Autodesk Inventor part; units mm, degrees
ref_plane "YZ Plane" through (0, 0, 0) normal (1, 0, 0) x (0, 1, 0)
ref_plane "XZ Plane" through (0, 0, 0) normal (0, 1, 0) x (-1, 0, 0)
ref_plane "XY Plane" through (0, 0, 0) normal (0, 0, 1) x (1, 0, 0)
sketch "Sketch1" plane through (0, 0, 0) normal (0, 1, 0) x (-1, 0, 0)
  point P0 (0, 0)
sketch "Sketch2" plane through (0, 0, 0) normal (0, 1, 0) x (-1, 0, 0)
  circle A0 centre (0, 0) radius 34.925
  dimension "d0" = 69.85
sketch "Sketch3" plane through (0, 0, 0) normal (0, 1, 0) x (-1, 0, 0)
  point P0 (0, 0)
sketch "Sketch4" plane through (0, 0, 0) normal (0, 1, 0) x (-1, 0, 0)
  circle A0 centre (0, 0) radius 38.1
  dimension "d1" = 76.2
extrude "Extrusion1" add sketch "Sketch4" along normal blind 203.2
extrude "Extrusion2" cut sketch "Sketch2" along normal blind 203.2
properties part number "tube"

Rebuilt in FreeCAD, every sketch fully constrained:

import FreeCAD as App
import Part
import Sketcher
from FreeCAD import Vector
Q = App.Units.Quantity

doc = App.newDocument("Part")
params = doc.addObject("Spreadsheet::Sheet", "Params")
for row, (alias, value) in enumerate([
    ("sketch1_diameter", "3 in"),
    ("pad1_length", "8 in"),
    ("sketch2_diameter", "2.75 in"),
    ("pocket1_length", "8 in"),
], start=1):
    params.set(f"A{row}", alias)
    params.set(f"B{row}", "=" + value)
    params.setAlias(f"B{row}", alias)

body = doc.addObject("PartDesign::Body", "Body")

# Sketch on XZ plane
sketch1 = body.newObject("Sketcher::SketchObject", "Sketch")
sketch1.AttachmentSupport = (doc.getObject("XZ_Plane"), [""])
sketch1.MapMode = "FlatFace"
sketch1.addGeometry(Part.Circle(Vector(0, 0, 0), Vector(0, 0, 1), 38), False)
sketch1.addConstraint([
    Sketcher.Constraint("Coincident", 0, 3, -1, 1),
    Sketcher.Constraint("Diameter", 0, Q("3 in")),
])
sketch1.setExpression("Constraints[1]", "Params.sketch1_diameter")
pad1 = body.newObject("PartDesign::Pad", "Pad")
pad1.Profile = sketch1
pad1.setExpression("Length", "Params.pad1_length")
pad1.Reversed = True

# Sketch on XZ plane
sketch2 = body.newObject("Sketcher::SketchObject", "Sketch001")
sketch2.AttachmentSupport = (doc.getObject("XZ_Plane"), [""])
sketch2.MapMode = "FlatFace"
sketch2.addGeometry(Part.Circle(Vector(0, 0, 0), Vector(0, 0, 1), 35), False)
sketch2.addConstraint([
    Sketcher.Constraint("Coincident", 0, 3, -1, 1),
    Sketcher.Constraint("Diameter", 0, Q("2.75 in")),
])
sketch2.setExpression("Constraints[1]", "Params.sketch2_diameter")
pocket1 = body.newObject("PartDesign::Pocket", "Pocket")
pocket1.Profile = sketch2
pocket1.setExpression("Length", "Params.pocket1_length")

doc.recompute()
